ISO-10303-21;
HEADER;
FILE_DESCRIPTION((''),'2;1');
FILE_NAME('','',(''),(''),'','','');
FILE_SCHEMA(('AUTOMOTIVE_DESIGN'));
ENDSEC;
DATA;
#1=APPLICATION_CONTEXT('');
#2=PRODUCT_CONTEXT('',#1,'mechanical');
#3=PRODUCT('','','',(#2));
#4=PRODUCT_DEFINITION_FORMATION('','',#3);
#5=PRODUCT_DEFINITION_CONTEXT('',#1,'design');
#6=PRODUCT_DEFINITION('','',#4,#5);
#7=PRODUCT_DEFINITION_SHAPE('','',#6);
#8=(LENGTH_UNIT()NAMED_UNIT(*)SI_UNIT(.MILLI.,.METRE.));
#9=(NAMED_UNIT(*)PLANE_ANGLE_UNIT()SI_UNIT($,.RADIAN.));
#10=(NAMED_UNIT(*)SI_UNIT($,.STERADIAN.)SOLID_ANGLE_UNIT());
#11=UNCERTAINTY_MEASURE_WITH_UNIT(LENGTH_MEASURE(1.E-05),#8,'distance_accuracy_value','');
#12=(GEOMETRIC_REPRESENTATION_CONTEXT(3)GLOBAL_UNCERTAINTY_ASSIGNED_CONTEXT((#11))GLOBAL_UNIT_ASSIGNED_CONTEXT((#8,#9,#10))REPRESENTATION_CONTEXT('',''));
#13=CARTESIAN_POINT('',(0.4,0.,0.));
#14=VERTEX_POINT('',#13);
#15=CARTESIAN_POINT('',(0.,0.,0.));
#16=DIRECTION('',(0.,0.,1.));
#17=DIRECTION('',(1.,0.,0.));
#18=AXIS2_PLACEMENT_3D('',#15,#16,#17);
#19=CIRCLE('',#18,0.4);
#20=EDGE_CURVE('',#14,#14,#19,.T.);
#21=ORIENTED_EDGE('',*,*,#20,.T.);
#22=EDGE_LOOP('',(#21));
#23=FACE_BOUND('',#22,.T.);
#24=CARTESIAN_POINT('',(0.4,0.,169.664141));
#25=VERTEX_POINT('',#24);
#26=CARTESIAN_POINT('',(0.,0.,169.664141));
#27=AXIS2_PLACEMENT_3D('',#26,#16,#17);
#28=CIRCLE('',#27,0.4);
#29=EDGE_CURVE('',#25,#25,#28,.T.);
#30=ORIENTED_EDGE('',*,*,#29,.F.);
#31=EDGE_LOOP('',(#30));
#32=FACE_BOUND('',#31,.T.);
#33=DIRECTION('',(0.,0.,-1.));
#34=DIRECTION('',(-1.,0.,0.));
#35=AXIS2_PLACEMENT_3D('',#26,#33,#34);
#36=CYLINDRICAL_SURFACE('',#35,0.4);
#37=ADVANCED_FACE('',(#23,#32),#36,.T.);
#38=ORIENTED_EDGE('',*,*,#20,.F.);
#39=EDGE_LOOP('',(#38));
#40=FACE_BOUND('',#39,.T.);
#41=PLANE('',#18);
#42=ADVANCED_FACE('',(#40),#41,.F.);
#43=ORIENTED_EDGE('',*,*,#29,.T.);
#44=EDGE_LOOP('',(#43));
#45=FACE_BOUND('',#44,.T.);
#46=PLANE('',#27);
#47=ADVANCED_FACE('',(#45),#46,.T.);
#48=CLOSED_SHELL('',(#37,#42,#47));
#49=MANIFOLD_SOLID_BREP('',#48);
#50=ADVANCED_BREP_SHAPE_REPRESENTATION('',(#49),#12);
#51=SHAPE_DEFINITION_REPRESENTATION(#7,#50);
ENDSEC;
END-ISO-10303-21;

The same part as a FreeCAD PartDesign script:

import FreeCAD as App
import Part
import Sketcher
from FreeCAD import Vector

doc = App.newDocument("Part")
body = doc.addObject("PartDesign::Body", "Body")

# Sketch on XY plane
sketch1 = body.newObject("Sketcher::SketchObject", "Sketch")
sketch1.AttachmentSupport = (doc.getObject("XY_Plane"), [""])
sketch1.MapMode = "FlatFace"
sketch1.addGeometry(Part.Circle(Vector(0, 0, 0), Vector(0, 0, 1), 0.4), False)
sketch1.addConstraint([
    Sketcher.Constraint("Coincident", 0, 3, -1, 1),
    Sketcher.Constraint("Diameter", 0, 0.8),
])
pad1 = body.newObject("PartDesign::Pad", "Pad")
pad1.Profile = sketch1
pad1.Length = 169.664141

doc.recompute()
